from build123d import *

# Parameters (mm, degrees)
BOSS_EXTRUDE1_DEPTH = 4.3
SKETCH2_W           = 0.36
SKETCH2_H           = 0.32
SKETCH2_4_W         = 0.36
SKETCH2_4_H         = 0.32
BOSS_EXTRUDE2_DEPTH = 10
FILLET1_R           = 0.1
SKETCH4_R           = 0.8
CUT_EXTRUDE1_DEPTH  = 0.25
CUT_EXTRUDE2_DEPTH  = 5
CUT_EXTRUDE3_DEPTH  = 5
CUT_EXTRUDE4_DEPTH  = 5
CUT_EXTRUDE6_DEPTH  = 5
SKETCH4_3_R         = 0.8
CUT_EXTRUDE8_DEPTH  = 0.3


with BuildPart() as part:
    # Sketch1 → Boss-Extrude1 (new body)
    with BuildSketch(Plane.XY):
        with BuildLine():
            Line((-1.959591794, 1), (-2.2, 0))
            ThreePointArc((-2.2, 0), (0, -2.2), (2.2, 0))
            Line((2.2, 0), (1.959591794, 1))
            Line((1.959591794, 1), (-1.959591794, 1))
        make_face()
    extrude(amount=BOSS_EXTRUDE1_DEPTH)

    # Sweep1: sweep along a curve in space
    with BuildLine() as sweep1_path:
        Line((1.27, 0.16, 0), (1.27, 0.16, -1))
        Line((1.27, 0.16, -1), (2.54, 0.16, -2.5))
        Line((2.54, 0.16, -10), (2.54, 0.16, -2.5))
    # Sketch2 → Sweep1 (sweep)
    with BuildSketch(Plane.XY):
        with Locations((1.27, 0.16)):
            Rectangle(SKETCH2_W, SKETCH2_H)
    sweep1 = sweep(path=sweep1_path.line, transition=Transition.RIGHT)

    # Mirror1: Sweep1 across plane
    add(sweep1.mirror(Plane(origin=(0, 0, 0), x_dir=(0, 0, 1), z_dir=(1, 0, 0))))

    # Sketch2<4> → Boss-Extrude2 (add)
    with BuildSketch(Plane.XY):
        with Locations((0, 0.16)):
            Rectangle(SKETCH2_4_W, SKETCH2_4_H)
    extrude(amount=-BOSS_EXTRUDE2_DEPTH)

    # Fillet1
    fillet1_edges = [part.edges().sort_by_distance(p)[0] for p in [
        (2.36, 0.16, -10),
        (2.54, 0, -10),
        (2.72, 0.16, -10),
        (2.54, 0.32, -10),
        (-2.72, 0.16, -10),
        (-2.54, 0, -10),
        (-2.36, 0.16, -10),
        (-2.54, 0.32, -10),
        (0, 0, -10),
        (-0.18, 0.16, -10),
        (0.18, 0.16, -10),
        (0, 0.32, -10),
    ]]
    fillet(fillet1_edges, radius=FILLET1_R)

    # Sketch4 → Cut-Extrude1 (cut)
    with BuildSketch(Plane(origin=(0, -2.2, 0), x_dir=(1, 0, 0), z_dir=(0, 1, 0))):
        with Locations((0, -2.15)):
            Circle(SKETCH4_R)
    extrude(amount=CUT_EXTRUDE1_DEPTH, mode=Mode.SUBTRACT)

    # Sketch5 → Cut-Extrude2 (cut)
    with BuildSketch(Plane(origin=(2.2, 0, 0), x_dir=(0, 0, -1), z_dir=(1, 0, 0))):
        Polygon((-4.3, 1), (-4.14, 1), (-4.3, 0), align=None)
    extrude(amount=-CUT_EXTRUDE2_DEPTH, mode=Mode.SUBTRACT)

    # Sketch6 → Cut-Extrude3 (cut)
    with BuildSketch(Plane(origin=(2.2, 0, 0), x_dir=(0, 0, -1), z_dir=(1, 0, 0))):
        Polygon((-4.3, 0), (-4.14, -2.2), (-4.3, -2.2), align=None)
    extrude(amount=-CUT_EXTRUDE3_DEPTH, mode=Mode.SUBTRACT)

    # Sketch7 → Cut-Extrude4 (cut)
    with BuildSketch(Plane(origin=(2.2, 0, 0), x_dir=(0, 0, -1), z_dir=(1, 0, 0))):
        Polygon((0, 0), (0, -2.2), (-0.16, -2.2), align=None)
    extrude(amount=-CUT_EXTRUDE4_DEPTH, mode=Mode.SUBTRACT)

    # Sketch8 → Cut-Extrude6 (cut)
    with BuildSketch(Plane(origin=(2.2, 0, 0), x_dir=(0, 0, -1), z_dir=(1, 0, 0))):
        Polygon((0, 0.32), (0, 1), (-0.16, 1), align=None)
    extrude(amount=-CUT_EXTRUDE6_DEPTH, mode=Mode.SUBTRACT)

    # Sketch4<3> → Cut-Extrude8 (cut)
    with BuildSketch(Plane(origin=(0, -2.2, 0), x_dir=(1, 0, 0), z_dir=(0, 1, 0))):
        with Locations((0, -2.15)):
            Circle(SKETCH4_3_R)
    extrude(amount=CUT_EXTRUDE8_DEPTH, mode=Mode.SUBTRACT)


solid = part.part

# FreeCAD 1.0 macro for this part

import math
import FreeCAD as App
import Part
import Sketcher
Q = App.Units.Quantity


def edges_at(feature, points):
    """Names of the edges that pass closest to the given points."""
    edges = feature.Shape.Edges
    near = lambda p: min(range(len(edges)), key=lambda i: edges[i].distToShape(Part.Vertex(*p))[0])
    return sorted({f"Edge{near(p) + 1}" for p in points})

doc = App.newDocument("Part")
params = doc.addObject("Spreadsheet::Sheet", "Params")
for row, (alias, value) in enumerate([
    ("sketch1_radius", "2.2 mm"),
    ("pad1_length", "4.3 mm"),
    ("sketch2_width", "0.36 mm"),
    ("sketch2_height", "0.32 mm"),
    ("sketch3_height", "1 mm"),
    ("sketch3_height2", "7.5 mm"),
    ("sketch4_width", "0.36 mm"),
    ("sketch4_height", "0.32 mm"),
    ("pad2_length", "10 mm"),
    ("fillet_radius", "0.1 mm"),
    ("sketch5_diameter", "1.6 mm"),
    ("pocket1_length", "0.25 mm"),
    ("sketch6_width", "1 mm"),
    ("sketch6_height", "0.16 mm"),
    ("pocket2_length", "5 mm"),
    ("sketch7_width", "2.2 mm"),
    ("sketch7_height", "0.16 mm"),
    ("pocket3_length", "5 mm"),
    ("sketch8_width", "2.2 mm"),
    ("sketch8_height", "0.16 mm"),
    ("pocket4_length", "5 mm"),
    ("sketch9_width", "0.68 mm"),
    ("sketch9_height", "0.16 mm"),
    ("pocket5_length", "5 mm"),
    ("sketch10_diameter", "1.6 mm"),
    ("pocket6_length", "0.3 mm"),
], start=1):
    params.set(f"A{row}", alias)
    params.set(f"B{row}", "=" + value)
    params.setAlias(f"B{row}", alias)

body = doc.addObject("PartDesign::Body", "Body")

sketch1 = body.newObject("Sketcher::SketchObject", "Sketch")
sketch1.AttachmentSupport = (doc.getObject("XY_Plane"), [""])
sketch1.MapMode = "FlatFace"
sketch1.addGeometry(Part.LineSegment(App.Vector(-2, 1, 0), App.Vector(-2.2, 0, 0)), False)
sketch1.addGeometry(Part.ArcOfCircle(Part.Circle(App.Vector(0, 0, 0), App.Vector(0, 0, 1), 2.2), math.radians(180), math.radians(360)), False)
sketch1.addGeometry(Part.LineSegment(App.Vector(2.2, 0, 0), App.Vector(2, 1, 0)), False)
sketch1.addGeometry(Part.LineSegment(App.Vector(2, 1, 0), App.Vector(-2, 1, 0)), False)
sketch1.addConstraint(Sketcher.Constraint("Coincident", 0, 2, 1, 1))
sketch1.addConstraint(Sketcher.Constraint("Coincident", 1, 2, 2, 1))
sketch1.addConstraint(Sketcher.Constraint("Coincident", 2, 2, 3, 1))
sketch1.addConstraint(Sketcher.Constraint("Coincident", 3, 2, 0, 1))
sketch1.addConstraint(Sketcher.Constraint("Horizontal", 3))
sketch1.addConstraint(Sketcher.Constraint("Coincident", 1, 3, -1, 1))
sketch1.addConstraint(Sketcher.Constraint("PointOnObject", 0, 2, -1))
sketch1.addConstraint(Sketcher.Constraint("PointOnObject", 1, 2, -1))
sketch1.addConstraint(Sketcher.Constraint("Equal", 0, 2))
sketch1.addConstraint(Sketcher.Constraint("Radius", 1, Q("2.2 mm")))
sketch1.addConstraint(Sketcher.Constraint("DistanceY", -1, 1, 2, 2, Q("1 mm")))
sketch1.addConstraint(Sketcher.Constraint("DistanceX", 3, 2, 3, 1, Q("3.919184 mm")))
sketch1.setExpression("Constraints[9]", "Params.sketch1_radius")
pad1 = body.newObject("PartDesign::Pad", "Pad")
pad1.Profile = sketch1
pad1.setExpression("Length", "Params.pad1_length")

sketch2 = body.newObject("Sketcher::SketchObject", "Sketch001")
sketch2.AttachmentSupport = (doc.getObject("XY_Plane"), [""])
sketch2.MapMode = "FlatFace"
sketch2.addGeometry(Part.LineSegment(App.Vector(1.09, 0.32, 0), App.Vector(1.09, 0, 0)), False)
sketch2.addGeometry(Part.LineSegment(App.Vector(1.09, 0, 0), App.Vector(1.45, 0, 0)), False)
sketch2.addGeometry(Part.LineSegment(App.Vector(1.45, 0, 0), App.Vector(1.45, 0.32, 0)), False)
sketch2.addGeometry(Part.LineSegment(App.Vector(1.45, 0.32, 0), App.Vector(1.09, 0.32, 0)), False)
sketch2.addConstraint(Sketcher.Constraint("Coincident", 0, 2, 1, 1))
sketch2.addConstraint(Sketcher.Constraint("Coincident", 1, 2, 2, 1))
sketch2.addConstraint(Sketcher.Constraint("Coincident", 2, 2, 3, 1))
sketch2.addConstraint(Sketcher.Constraint("Coincident", 3, 2, 0, 1))
sketch2.addConstraint(Sketcher.Constraint("Vertical", 0))
sketch2.addConstraint(Sketcher.Constraint("Horizontal", 1))
sketch2.addConstraint(Sketcher.Constraint("Vertical", 2))
sketch2.addConstraint(Sketcher.Constraint("Horizontal", 3))
sketch2.addConstraint(Sketcher.Constraint("PointOnObject", 0, 2, -1))
sketch2.addConstraint(Sketcher.Constraint("DistanceX", 1, 1, 1, 2, Q("0.36 mm")))
sketch2.addConstraint(Sketcher.Constraint("DistanceY", 0, 2, 0, 1, Q("0.32 mm")))
sketch2.addConstraint(Sketcher.Constraint("DistanceX", -1, 1, 0, 2, Q("1.09 mm")))
sketch2.setExpression("Constraints[9]", "Params.sketch2_width")
sketch2.setExpression("Constraints[10]", "Params.sketch2_height")

sketch3 = body.newObject("Sketcher::SketchObject", "Sketch002")
sketch3.AttachmentSupport = (doc.getObject("XZ_Plane"), [""])
sketch3.MapMode = "FlatFace"
sketch3.AttachmentOffset = App.Placement(App.Vector(0, 0, -0.16), App.Rotation())
sketch3.addGeometry(Part.LineSegment(App.Vector(1.3, 0, 0), App.Vector(1.3, -1, 0)), False)
sketch3.addGeometry(Part.LineSegment(App.Vector(1.3, -1, 0), App.Vector(2.5, -2.5, 0)), False)
sketch3.addGeometry(Part.LineSegment(App.Vector(2.5, -2.5, 0), App.Vector(2.5, -10, 0)), False)
sketch3.addConstraint(Sketcher.Constraint("Coincident", 0, 2, 1, 1))
sketch3.addConstraint(Sketcher.Constraint("Coincident", 1, 2, 2, 1))
sketch3.addConstraint(Sketcher.Constraint("Vertical", 0))
sketch3.addConstraint(Sketcher.Constraint("Vertical", 2))
sketch3.addConstraint(Sketcher.Constraint("PointOnObject", 0, 1, -1))
sketch3.addConstraint(Sketcher.Constraint("DistanceY", 0, 2, 0, 1, Q("1 mm")))
sketch3.addConstraint(Sketcher.Constraint("DistanceY", 2, 2, 2, 1, Q("7.5 mm")))
sketch3.addConstraint(Sketcher.Constraint("DistanceY", 2, 2, -1, 1, Q("10 mm")))
sketch3.addConstraint(Sketcher.Constraint("DistanceX", -1, 1, 0, 1, Q("1.27 mm")))
sketch3.addConstraint(Sketcher.Constraint("DistanceX", -1, 1, 1, 2, Q("2.54 mm")))
sketch3.setExpression("Constraints[5]", "Params.sketch3_height")
sketch3.setExpression("Constraints[6]", "Params.sketch3_height2")
doc.recompute()

additivepipe = body.newObject("PartDesign::AdditivePipe", "AdditivePipe")
additivepipe.Profile = sketch2
additivepipe.Spine = (sketch3, ["Edge1", "Edge2", "Edge3"])
additivepipe.Transition = "Right corner"
doc.recompute()

mirrored = body.newObject("PartDesign::Mirrored", "Mirrored")
mirrored.Originals = [additivepipe]
mirrored.MirrorPlane = (doc.getObject("YZ_Plane"), [""])
body.Tip = mirrored

sketch4 = body.newObject("Sketcher::SketchObject", "Sketch003")
sketch4.AttachmentSupport = (doc.getObject("XY_Plane"), [""])
sketch4.MapMode = "FlatFace"
sketch4.addGeometry(Part.LineSegment(App.Vector(-0.18, 0.32, 0), App.Vector(-0.18, 0, 0)), False)
sketch4.addGeometry(Part.LineSegment(App.Vector(-0.18, 0, 0), App.Vector(0.18, 0, 0)), False)
sketch4.addGeometry(Part.LineSegment(App.Vector(0.18, 0, 0), App.Vector(0.18, 0.32, 0)), False)
sketch4.addGeometry(Part.LineSegment(App.Vector(0.18, 0.32, 0), App.Vector(-0.18, 0.32, 0)), False)
sketch4.addConstraint(Sketcher.Constraint("Coincident", 0, 2, 1, 1))
sketch4.addConstraint(Sketcher.Constraint("Coincident", 1, 2, 2, 1))
sketch4.addConstraint(Sketcher.Constraint("Coincident", 2, 2, 3, 1))
sketch4.addConstraint(Sketcher.Constraint("Coincident", 3, 2, 0, 1))
sketch4.addConstraint(Sketcher.Constraint("Vertical", 0))
sketch4.addConstraint(Sketcher.Constraint("Horizontal", 1))
sketch4.addConstraint(Sketcher.Constraint("Vertical", 2))
sketch4.addConstraint(Sketcher.Constraint("Horizontal", 3))
sketch4.addConstraint(Sketcher.Constraint("Symmetric", 0, 2, 1, 2, -1, 1))
sketch4.addConstraint(Sketcher.Constraint("DistanceX", 1, 1, 1, 2, Q("0.36 mm")))
sketch4.addConstraint(Sketcher.Constraint("DistanceY", 0, 2, 0, 1, Q("0.32 mm")))
sketch4.setExpression("Constraints[9]", "Params.sketch4_width")
sketch4.setExpression("Constraints[10]", "Params.sketch4_height")
pad2 = body.newObject("PartDesign::Pad", "Pad001")
pad2.Profile = sketch4
pad2.setExpression("Length", "Params.pad2_length")
pad2.Reversed = True
doc.recompute()

fillet = body.newObject("PartDesign::Fillet", "Fillet")
fillet.Base = (pad2, edges_at(pad2, [
    (2.36, 0.16, -10),
    (2.54, 0, -10),
    (2.72, 0.16, -10),
    (2.54, 0.32, -10),
    (-2.72, 0.16, -10),
    (-2.54, 0, -10),
    (-2.36, 0.16, -10),
    (-2.54, 0.32, -10),
    (0, 0, -10),
    (-0.18, 0.16, -10),
    (0.18, 0.16, -10),
    (0, 0.32, -10),
]))
fillet.setExpression("Radius", "Params.fillet_radius")

sketch5 = body.newObject("Sketcher::SketchObject", "Sketch004")
sketch5.AttachmentSupport = (doc.getObject("XZ_Plane"), [""])
sketch5.MapMode = "FlatFace"
sketch5.AttachmentOffset = App.Placement(App.Vector(0, 0, 2.2), App.Rotation())
sketch5.addGeometry(Part.Circle(App.Vector(0, 2.1, 0), App.Vector(0, 0, 1), 0.8), False)
sketch5.addConstraint(Sketcher.Constraint("PointOnObject", 0, 3, -2))
sketch5.addConstraint(Sketcher.Constraint("Diameter", 0, Q("1.6 mm")))
sketch5.addConstraint(Sketcher.Constraint("DistanceY", -1, 1, 0, 3, Q("2.15 mm")))
sketch5.setExpression("Constraints[1]", "Params.sketch5_diameter")
pocket1 = body.newObject("PartDesign::Pocket", "Pocket")
pocket1.Profile = sketch5
pocket1.setExpression("Length", "Params.pocket1_length")

sketch6 = body.newObject("Sketcher::SketchObject", "Sketch005")
sketch6.AttachmentSupport = (doc.getObject("YZ_Plane"), [""])
sketch6.MapMode = "FlatFace"
sketch6.AttachmentOffset = App.Placement(App.Vector(0, 0, 2.2), App.Rotation())
sketch6.addGeometry(Part.LineSegment(App.Vector(1, 4.14, 0), App.Vector(1, 4.3, 0)), False)
sketch6.addGeometry(Part.LineSegment(App.Vector(1, 4.3, 0), App.Vector(0, 4.3, 0)), False)
sketch6.addGeometry(Part.LineSegment(App.Vector(0, 4.3, 0), App.Vector(1, 4.14, 0)), False)
sketch6.addConstraint(Sketcher.Constraint("Coincident", 0, 2, 1, 1))
sketch6.addConstraint(Sketcher.Constraint("Coincident", 1, 2, 2, 1))
sketch6.addConstraint(Sketcher.Constraint("Coincident", 2, 2, 0, 1))
sketch6.addConstraint(Sketcher.Constraint("Vertical", 0))
sketch6.addConstraint(Sketcher.Constraint("Horizontal", 1))
sketch6.addConstraint(Sketcher.Constraint("PointOnObject", 1, 2, -2))
sketch6.addConstraint(Sketcher.Constraint("DistanceX", 1, 2, 1, 1, Q("1 mm")))
sketch6.addConstraint(Sketcher.Constraint("DistanceY", 0, 1, 0, 2, Q("0.16 mm")))
sketch6.addConstraint(Sketcher.Constraint("DistanceY", -1, 1, 0, 2, Q("4.3 mm")))
sketch6.setExpression("Constraints[6]", "Params.sketch6_width")
sketch6.setExpression("Constraints[7]", "Params.sketch6_height")
pocket2 = body.newObject("PartDesign::Pocket", "Pocket001")
pocket2.Profile = sketch6
pocket2.setExpression("Length", "Params.pocket2_length")

sketch7 = body.newObject("Sketcher::SketchObject", "Sketch006")
sketch7.AttachmentSupport = (doc.getObject("YZ_Plane"), [""])
sketch7.MapMode = "FlatFace"
sketch7.AttachmentOffset = App.Placement(App.Vector(0, 0, 2.2), App.Rotation())
sketch7.addGeometry(Part.LineSegment(App.Vector(-2.2, 4.14, 0), App.Vector(0, 4.3, 0)), False)
sketch7.addGeometry(Part.LineSegment(App.Vector(0, 4.3, 0), App.Vector(-2.2, 4.3, 0)), False)
sketch7.addGeometry(Part.LineSegment(App.Vector(-2.2, 4.3, 0), App.Vector(-2.2, 4.14, 0)), False)
sketch7.addConstraint(Sketcher.Constraint("Coincident", 0, 2, 1, 1))
sketch7.addConstraint(Sketcher.Constraint("Coincident", 1, 2, 2, 1))
sketch7.addConstraint(Sketcher.Constraint("Coincident", 2, 2, 0, 1))
sketch7.addConstraint(Sketcher.Constraint("Horizontal", 1))
sketch7.addConstraint(Sketcher.Constraint("Vertical", 2))
sketch7.addConstraint(Sketcher.Constraint("PointOnObject", 0, 2, -2))
sketch7.addConstraint(Sketcher.Constraint("DistanceX", 1, 2, 1, 1, Q("2.2 mm")))
sketch7.addConstraint(Sketcher.Constraint("DistanceY", 2, 2, 2, 1, Q("0.16 mm")))
sketch7.addConstraint(Sketcher.Constraint("DistanceY", -1, 1, 0, 2, Q("4.3 mm")))
sketch7.setExpression("Constraints[6]", "Params.sketch7_width")
sketch7.setExpression("Constraints[7]", "Params.sketch7_height")
pocket3 = body.newObject("PartDesign::Pocket", "Pocket002")
pocket3.Profile = sketch7
pocket3.setExpression("Length", "Params.pocket3_length")

sketch8 = body.newObject("Sketcher::SketchObject", "Sketch007")
sketch8.AttachmentSupport = (doc.getObject("YZ_Plane"), [""])
sketch8.MapMode = "FlatFace"
sketch8.AttachmentOffset = App.Placement(App.Vector(0, 0, 2.2), App.Rotation())
sketch8.addGeometry(Part.LineSegment(App.Vector(-2.2, 0, 0), App.Vector(0, 0, 0)), False)
sketch8.addGeometry(Part.LineSegment(App.Vector(0, 0, 0), App.Vector(-2.2, 0.16, 0)), False)
sketch8.addGeometry(Part.LineSegment(App.Vector(-2.2, 0.16, 0), App.Vector(-2.2, 0, 0)), False)
sketch8.addConstraint(Sketcher.Constraint("Coincident", 0, 2, 1, 1))
sketch8.addConstraint(Sketcher.Constraint("Coincident", 1, 2, 2, 1))
sketch8.addConstraint(Sketcher.Constraint("Coincident", 2, 2, 0, 1))
sketch8.addConstraint(Sketcher.Constraint("Horizontal", 0))
sketch8.addConstraint(Sketcher.Constraint("Vertical", 2))
sketch8.addConstraint(Sketcher.Constraint("Coincident", 0, 2, -1, 1))
sketch8.addConstraint(Sketcher.Constraint("DistanceX", 0, 1, 0, 2, Q("2.2 mm")))
sketch8.addConstraint(Sketcher.Constraint("DistanceY", 2, 2, 2, 1, Q("0.16 mm")))
sketch8.setExpression("Constraints[6]", "Params.sketch8_width")
sketch8.setExpression("Constraints[7]", "Params.sketch8_height")
pocket4 = body.newObject("PartDesign::Pocket", "Pocket003")
pocket4.Profile = sketch8
pocket4.setExpression("Length", "Params.pocket4_length")

sketch9 = body.newObject("Sketcher::SketchObject", "Sketch008")
sketch9.AttachmentSupport = (doc.getObject("YZ_Plane"), [""])
sketch9.MapMode = "FlatFace"
sketch9.AttachmentOffset = App.Placement(App.Vector(0, 0, 2.2), App.Rotation())
sketch9.addGeometry(Part.LineSegment(App.Vector(0.32, 0, 0), App.Vector(1, 0, 0)), False)
sketch9.addGeometry(Part.LineSegment(App.Vector(1, 0, 0), App.Vector(1, 0.16, 0)), False)
sketch9.addGeometry(Part.LineSegment(App.Vector(1, 0.16, 0), App.Vector(0.32, 0, 0)), False)
sketch9.addConstraint(Sketcher.Constraint("Coincident", 0, 2, 1, 1))
sketch9.addConstraint(Sketcher.Constraint("Coincident", 1, 2, 2, 1))
sketch9.addConstraint(Sketcher.Constraint("Coincident", 2, 2, 0, 1))
sketch9.addConstraint(Sketcher.Constraint("Horizontal", 0))
sketch9.addConstraint(Sketcher.Constraint("Vertical", 1))
sketch9.addConstraint(Sketcher.Constraint("PointOnObject", 0, 2, -1))
sketch9.addConstraint(Sketcher.Constraint("DistanceX", -1, 1, 0, 2, Q("1 mm")))
sketch9.addConstraint(Sketcher.Constraint("DistanceX", 0, 1, 0, 2, Q("0.68 mm")))
sketch9.addConstraint(Sketcher.Constraint("DistanceY", 1, 1, 1, 2, Q("0.16 mm")))
sketch9.setExpression("Constraints[7]", "Params.sketch9_width")
sketch9.setExpression("Constraints[8]", "Params.sketch9_height")
pocket5 = body.newObject("PartDesign::Pocket", "Pocket004")
pocket5.Profile = sketch9
pocket5.setExpression("Length", "Params.pocket5_length")

sketch10 = body.newObject("Sketcher::SketchObject", "Sketch009")
sketch10.AttachmentSupport = (doc.getObject("XZ_Plane"), [""])
sketch10.MapMode = "FlatFace"
sketch10.AttachmentOffset = App.Placement(App.Vector(0, 0, 2.2), App.Rotation())
sketch10.addGeometry(Part.Circle(App.Vector(0, 2.1, 0), App.Vector(0, 0, 1), 0.8), False)
sketch10.addConstraint(Sketcher.Constraint("PointOnObject", 0, 3, -2))
sketch10.addConstraint(Sketcher.Constraint("Diameter", 0, Q("1.6 mm")))
sketch10.addConstraint(Sketcher.Constraint("DistanceY", -1, 1, 0, 3, Q("2.15 mm")))
sketch10.setExpression("Constraints[1]", "Params.sketch10_diameter")
pocket6 = body.newObject("PartDesign::Pocket", "Pocket005")
pocket6.Profile = sketch10
pocket6.setExpression("Length", "Params.pocket6_length")

doc.recompute()
